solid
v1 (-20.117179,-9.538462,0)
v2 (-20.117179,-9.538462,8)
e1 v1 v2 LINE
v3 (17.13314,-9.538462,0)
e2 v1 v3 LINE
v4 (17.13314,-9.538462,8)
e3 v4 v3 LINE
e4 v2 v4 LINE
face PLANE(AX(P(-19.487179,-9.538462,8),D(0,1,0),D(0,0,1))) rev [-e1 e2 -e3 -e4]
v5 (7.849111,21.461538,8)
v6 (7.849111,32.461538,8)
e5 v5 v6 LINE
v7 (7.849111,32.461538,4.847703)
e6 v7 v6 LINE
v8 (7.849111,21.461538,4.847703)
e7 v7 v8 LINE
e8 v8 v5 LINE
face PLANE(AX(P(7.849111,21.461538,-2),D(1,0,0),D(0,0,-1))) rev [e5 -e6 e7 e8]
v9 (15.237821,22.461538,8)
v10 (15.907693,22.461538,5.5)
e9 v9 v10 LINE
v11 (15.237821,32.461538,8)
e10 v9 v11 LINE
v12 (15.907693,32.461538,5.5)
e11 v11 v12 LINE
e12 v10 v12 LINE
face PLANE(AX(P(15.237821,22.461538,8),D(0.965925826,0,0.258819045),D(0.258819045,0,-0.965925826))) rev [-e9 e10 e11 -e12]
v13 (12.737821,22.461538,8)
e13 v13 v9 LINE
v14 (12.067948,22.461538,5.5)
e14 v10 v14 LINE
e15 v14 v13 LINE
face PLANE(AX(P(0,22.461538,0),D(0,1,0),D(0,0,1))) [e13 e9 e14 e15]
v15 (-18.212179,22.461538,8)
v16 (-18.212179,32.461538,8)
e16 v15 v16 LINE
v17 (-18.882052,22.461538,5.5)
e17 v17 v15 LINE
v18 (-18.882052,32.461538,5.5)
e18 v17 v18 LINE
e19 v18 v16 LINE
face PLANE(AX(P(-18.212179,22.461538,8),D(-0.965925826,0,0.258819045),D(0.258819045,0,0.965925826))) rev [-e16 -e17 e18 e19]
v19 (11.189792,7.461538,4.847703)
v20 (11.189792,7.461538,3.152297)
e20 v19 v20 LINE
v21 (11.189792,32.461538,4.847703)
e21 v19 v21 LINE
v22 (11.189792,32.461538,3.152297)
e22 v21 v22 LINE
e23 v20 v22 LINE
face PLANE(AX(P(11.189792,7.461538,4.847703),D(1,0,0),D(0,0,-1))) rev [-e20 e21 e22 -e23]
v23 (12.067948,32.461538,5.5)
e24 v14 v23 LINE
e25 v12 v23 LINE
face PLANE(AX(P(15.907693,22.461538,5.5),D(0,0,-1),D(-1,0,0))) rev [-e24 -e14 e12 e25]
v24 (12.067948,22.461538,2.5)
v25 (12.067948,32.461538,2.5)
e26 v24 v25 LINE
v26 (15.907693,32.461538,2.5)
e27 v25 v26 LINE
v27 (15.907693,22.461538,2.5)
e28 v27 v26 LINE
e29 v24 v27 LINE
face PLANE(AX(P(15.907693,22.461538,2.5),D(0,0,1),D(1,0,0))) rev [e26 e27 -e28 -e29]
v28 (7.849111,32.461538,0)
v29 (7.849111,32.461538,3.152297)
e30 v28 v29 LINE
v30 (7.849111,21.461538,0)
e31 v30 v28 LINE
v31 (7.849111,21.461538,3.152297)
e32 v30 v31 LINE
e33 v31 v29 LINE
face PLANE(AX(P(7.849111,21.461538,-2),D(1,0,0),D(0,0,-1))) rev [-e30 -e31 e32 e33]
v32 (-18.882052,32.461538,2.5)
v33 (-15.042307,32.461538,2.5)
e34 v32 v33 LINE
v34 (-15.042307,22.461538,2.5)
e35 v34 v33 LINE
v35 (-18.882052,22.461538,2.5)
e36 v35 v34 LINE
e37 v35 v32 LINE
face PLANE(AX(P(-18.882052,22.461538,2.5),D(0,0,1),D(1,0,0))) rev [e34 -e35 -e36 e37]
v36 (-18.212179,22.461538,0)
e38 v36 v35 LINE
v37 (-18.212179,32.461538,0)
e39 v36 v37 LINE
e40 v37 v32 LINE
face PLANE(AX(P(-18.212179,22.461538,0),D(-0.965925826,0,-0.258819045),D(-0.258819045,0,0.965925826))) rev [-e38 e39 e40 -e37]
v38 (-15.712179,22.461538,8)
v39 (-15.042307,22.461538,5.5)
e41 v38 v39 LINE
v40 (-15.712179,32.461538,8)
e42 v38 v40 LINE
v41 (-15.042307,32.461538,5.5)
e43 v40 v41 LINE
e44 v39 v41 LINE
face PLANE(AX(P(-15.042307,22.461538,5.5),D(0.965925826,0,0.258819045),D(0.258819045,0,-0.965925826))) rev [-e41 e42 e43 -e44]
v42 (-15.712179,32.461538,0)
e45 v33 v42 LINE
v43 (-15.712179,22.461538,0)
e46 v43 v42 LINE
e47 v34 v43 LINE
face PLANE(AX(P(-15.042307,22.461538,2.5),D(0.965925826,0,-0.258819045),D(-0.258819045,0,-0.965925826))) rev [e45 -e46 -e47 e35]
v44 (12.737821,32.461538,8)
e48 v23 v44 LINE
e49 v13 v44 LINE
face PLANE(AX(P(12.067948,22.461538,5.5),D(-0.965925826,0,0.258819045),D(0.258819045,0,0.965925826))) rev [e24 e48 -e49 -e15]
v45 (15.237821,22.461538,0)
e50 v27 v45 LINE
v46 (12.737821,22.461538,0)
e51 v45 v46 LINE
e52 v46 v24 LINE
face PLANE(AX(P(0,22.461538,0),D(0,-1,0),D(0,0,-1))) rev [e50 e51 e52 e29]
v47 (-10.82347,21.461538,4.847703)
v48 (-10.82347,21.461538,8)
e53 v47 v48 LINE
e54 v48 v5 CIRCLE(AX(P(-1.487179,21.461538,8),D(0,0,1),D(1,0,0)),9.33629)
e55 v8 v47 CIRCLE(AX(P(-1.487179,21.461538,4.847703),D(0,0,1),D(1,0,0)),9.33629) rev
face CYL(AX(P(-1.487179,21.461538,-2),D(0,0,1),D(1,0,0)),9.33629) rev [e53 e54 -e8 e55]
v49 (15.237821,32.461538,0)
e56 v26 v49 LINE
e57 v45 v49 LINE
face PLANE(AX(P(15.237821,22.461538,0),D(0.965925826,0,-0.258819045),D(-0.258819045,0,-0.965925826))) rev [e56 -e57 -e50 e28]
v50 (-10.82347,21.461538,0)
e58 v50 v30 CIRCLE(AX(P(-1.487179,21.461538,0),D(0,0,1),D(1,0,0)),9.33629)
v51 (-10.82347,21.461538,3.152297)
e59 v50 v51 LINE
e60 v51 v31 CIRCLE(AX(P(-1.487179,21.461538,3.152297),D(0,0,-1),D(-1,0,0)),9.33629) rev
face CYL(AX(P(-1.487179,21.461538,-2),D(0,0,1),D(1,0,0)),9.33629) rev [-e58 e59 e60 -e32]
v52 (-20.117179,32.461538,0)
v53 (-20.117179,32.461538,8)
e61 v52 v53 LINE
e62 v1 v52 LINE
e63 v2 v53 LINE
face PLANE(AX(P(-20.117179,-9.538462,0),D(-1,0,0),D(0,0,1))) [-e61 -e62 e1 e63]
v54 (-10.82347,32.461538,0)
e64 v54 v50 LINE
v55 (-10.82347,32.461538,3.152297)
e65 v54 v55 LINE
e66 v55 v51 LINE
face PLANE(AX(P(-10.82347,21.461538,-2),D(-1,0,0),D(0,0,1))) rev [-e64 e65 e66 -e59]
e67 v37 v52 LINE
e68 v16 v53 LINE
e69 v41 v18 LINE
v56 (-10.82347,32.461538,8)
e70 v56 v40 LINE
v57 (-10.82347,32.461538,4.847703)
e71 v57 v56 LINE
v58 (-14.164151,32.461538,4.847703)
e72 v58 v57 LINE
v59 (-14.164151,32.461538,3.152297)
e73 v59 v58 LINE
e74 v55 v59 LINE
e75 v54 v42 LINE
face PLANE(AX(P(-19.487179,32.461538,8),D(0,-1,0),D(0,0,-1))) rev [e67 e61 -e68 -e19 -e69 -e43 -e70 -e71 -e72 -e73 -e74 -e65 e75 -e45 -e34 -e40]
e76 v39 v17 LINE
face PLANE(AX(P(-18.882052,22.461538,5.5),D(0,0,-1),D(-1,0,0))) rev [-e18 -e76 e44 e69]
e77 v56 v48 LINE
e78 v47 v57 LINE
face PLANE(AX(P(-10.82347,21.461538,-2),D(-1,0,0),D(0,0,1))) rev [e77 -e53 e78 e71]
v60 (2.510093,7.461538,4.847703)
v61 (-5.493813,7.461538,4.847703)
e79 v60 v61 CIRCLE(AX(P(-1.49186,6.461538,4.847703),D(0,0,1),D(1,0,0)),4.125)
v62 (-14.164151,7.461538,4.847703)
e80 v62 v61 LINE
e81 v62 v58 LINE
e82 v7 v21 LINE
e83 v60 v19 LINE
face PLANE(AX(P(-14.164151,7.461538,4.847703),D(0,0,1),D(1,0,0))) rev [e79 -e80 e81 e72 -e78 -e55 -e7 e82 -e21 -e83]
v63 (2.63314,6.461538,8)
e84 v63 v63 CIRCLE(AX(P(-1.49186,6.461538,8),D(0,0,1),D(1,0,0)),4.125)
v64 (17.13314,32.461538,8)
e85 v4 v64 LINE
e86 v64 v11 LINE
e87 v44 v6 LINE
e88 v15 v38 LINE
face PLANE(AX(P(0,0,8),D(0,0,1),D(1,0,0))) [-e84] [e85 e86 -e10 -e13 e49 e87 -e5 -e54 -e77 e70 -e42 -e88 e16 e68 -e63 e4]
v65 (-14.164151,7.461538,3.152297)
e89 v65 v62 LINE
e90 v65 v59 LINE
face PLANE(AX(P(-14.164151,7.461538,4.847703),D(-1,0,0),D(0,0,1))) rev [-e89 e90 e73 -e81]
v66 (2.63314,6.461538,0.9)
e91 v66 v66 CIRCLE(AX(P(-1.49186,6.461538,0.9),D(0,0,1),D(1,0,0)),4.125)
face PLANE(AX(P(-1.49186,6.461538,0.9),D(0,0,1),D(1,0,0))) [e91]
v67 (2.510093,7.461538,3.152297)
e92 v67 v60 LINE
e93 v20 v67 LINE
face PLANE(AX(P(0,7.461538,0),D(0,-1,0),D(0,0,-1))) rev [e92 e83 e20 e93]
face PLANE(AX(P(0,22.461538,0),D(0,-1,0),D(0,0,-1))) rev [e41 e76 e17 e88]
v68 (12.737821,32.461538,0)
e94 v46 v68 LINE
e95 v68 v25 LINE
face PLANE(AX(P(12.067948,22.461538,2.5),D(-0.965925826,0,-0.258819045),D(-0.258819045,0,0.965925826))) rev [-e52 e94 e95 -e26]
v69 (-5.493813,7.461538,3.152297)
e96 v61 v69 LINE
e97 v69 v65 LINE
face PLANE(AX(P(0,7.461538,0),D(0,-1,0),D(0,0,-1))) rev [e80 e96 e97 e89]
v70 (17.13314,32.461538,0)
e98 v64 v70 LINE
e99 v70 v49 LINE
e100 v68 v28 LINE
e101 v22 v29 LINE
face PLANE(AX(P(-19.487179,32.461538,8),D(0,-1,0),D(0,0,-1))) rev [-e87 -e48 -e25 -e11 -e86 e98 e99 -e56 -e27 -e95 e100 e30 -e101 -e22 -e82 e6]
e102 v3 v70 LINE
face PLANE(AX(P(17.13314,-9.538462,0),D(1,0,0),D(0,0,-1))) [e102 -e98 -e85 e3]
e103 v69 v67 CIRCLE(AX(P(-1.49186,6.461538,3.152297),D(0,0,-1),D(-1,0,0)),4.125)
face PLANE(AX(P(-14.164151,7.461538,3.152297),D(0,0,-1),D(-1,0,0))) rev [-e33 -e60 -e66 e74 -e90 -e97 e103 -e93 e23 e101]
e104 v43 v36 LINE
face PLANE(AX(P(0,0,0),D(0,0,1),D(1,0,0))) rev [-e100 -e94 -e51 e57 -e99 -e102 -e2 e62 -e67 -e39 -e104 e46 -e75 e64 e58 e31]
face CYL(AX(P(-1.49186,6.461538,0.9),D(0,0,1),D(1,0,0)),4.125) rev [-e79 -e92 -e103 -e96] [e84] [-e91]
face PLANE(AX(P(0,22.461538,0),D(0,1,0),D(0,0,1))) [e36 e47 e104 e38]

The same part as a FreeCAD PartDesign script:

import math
import FreeCAD as App
import Part
import Sketcher

V = App.Vector
Q = App.Units.Quantity


def add_polygon(sketch, points):
    """Adds a closed chain of lines whose ends are joined by coincident constraints."""
    first, n = sketch.GeometryCount, len(points)
    for a, b in zip(points, points[1:] + points[:1]):
        sketch.addGeometry(Part.LineSegment(App.Vector(*a, 0), App.Vector(*b, 0)), False)
    for i in range(n):
        sketch.addConstraint(Sketcher.Constraint("Coincident", first + i, 2, first + (i + 1) % n, 1))

doc = App.newDocument("Part")
body = doc.addObject("PartDesign::Body", "Body")

# Sketch on XY plane
sketch1 = body.newObject("Sketcher::SketchObject", "Sketch")
sketch1.AttachmentSupport = (doc.getObject("XY_Plane"), [""])
sketch1.MapMode = "FlatFace"
add_polygon(sketch1, [(-19, 32), (-19, -10), (17, -10), (17, 32)])  # lines 0-3
sketch1.addConstraint([
    Sketcher.Constraint("Vertical", 0),
    Sketcher.Constraint("Horizontal", 1),
    Sketcher.Constraint("Vertical", 2),
    Sketcher.Constraint("Horizontal", 3),
    Sketcher.Constraint("DistanceX", 1, 1, 1, 2, Q("36 mm")),
    Sketcher.Constraint("DistanceY", 0, 2, 0, 1, Q("42 mm")),
    Sketcher.Constraint("DistanceX", 0, 2, -1, 1, Q("19.487179 mm")),
    Sketcher.Constraint("DistanceY", 0, 2, -1, 1, Q("9.538462 mm")),
])
pad1 = body.newObject("PartDesign::Pad", "Pad")
pad1.Profile = sketch1
pad1.Length = 8

# Sketch on XZ plane
sketch2 = body.newObject("Sketcher::SketchObject", "Sketch001")
sketch2.AttachmentSupport = (doc.getObject("XZ_Plane"), [""])
sketch2.MapMode = "FlatFace"
sketch2.AttachmentOffset = App.Placement(V(0, 0, -32.461538), App.Rotation())
add_polygon(sketch2, [(-18.2, 0), (-18.9, 2.5), (-15, 2.5), (-15.7, 0)])  # lines 0-3
add_polygon(sketch2, [(-18.9, 5.5), (-18.2, 8), (-15.7, 8), (-15, 5.5)])  # lines 4-7
add_polygon(sketch2, [(15.9, 2.5), (15.2, 0), (12.7, 0), (12.1, 2.5)])  # lines 8-11
add_polygon(sketch2, [(15.2, 8), (15.9, 5.5), (12.1, 5.5), (12.7, 8)])  # lines 12-15
sketch2.addConstraint([
    Sketcher.Constraint("Horizontal", 1),
    Sketcher.Constraint("Horizontal", 3),
    Sketcher.Constraint("Horizontal", 5),
    Sketcher.Constraint("Horizontal", 7),
    Sketcher.Constraint("Horizontal", 9),
    Sketcher.Constraint("Horizontal", 11),
    Sketcher.Constraint("Horizontal", 13),
    Sketcher.Constraint("Horizontal", 15),
    Sketcher.Constraint("PointOnObject", 2, 2, -1),
    Sketcher.Constraint("PointOnObject", 8, 2, -1),
    Sketcher.Constraint("Parallel", 2, 4),
    Sketcher.Constraint("Parallel", 0, 6),
    Sketcher.Constraint("Parallel", 4, 8),
    Sketcher.Constraint("Parallel", 6, 10),
    Sketcher.Constraint("Parallel", 10, 12),
    Sketcher.Constraint("Parallel", 8, 14),
    Sketcher.Constraint("Horizontal", 1, 2, 10, 2),
    Sketcher.Constraint("Horizontal", 7, 2, 12, 2),
    Sketcher.Constraint("Horizontal", 5, 2, 14, 2),
    Sketcher.Constraint("Vertical", 3, 2, 4, 2),
    Sketcher.Constraint("Vertical", 2, 2, 5, 2),
    Sketcher.Constraint("Vertical", 1, 2, 6, 2),
    Sketcher.Constraint("Vertical", 0, 2, 7, 2),
    Sketcher.Constraint("Vertical", 11, 2, 12, 2),
    Sketcher.Constraint("Vertical", 10, 2, 13, 2),
    Sketcher.Constraint("Equal", 5, 9),
    Sketcher.Constraint("Angle", 0, Q("105 deg")),
    Sketcher.Constraint("DistanceX", 3, 2, 3, 1, Q("2.5 mm")),
    Sketcher.Constraint("DistanceY", -1, 1, 4, 2, Q("8 mm")),
    Sketcher.Constraint("DistanceY", 1, 2, 6, 2, Q("3 mm")),
    Sketcher.Constraint("DistanceX", 2, 2, 8, 2, Q("30.95 mm")),
    Sketcher.Constraint("DistanceX", 2, 2, -1, 1, Q("15.712179 mm")),
])
pocket1 = body.newObject("PartDesign::Pocket", "Pocket")
pocket1.Profile = sketch2
pocket1.Length = 10
pocket1.Reversed = True

# Sketch on XY plane
sketch3 = body.newObject("Sketcher::SketchObject", "Sketch002")
sketch3.AttachmentSupport = (doc.getObject("XY_Plane"), [""])
sketch3.MapMode = "FlatFace"
sketch3.AttachmentOffset = App.Placement(V(0, 0, 8), App.Rotation())
sketch3.addGeometry([
    Part.LineSegment(V(8, 32, 0), V(-11, 32, 0)),
    Part.LineSegment(V(-11, 32, 0), V(-11, 21, 0)),
    Part.ArcOfCircle(Part.Circle(V(-1, 21, 0), V(0, 0, 1), 9), math.radians(180), math.radians(360)),
    Part.LineSegment(V(8, 21, 0), V(8, 32, 0)),
], False)
sketch3.addConstraint([
    Sketcher.Constraint("Coincident", 0, 2, 1, 1),
    Sketcher.Constraint("Tangent", 1, 2, 2, 1),
    Sketcher.Constraint("Tangent", 2, 2, 3, 1),
    Sketcher.Constraint("Coincident", 3, 2, 0, 1),
    Sketcher.Constraint("Horizontal", 0),
    Sketcher.Constraint("Vertical", 1),
    Sketcher.Constraint("Vertical", 3),
    Sketcher.Constraint("DistanceY", 1, 2, 1, 1, Q("11 mm")),
    Sketcher.Constraint("Radius", 2, Q("9.33629 mm")),
    Sketcher.Constraint("DistanceX", 2, 3, -1, 1, Q("1.487179 mm")),
    Sketcher.Constraint("DistanceY", -1, 1, 2, 3, Q("21.461538 mm")),
])
pocket2 = body.newObject("PartDesign::Pocket", "Pocket001")
pocket2.Profile = sketch3
pocket2.Length = 10

# Sketch on XZ plane
sketch4 = body.newObject("Sketcher::SketchObject", "Sketch003")
sketch4.AttachmentSupport = (doc.getObject("XZ_Plane"), [""])
sketch4.MapMode = "FlatFace"
sketch4.AttachmentOffset = App.Placement(V(0, 0, -32.461538), App.Rotation())
add_polygon(sketch4, [(-14.2, 3.2), (-14.2, 4.8), (11.2, 4.8), (11.2, 3.2)])  # lines 0-3
sketch4.addConstraint([
    Sketcher.Constraint("Vertical", 0),
    Sketcher.Constraint("Horizontal", 1),
    Sketcher.Constraint("Vertical", 2),
    Sketcher.Constraint("Horizontal", 3),
    Sketcher.Constraint("DistanceX", 1, 1, 1, 2, Q("25.353942 mm")),
    Sketcher.Constraint("DistanceY", 0, 1, 0, 2, Q("1.695405 mm")),
    Sketcher.Constraint("DistanceX", 0, 2, -1, 1, Q("14.164151 mm")),
    Sketcher.Constraint("DistanceY", -1, 1, 0, 2, Q("4.847703 mm")),
])
pocket3 = body.newObject("PartDesign::Pocket", "Pocket002")
pocket3.Profile = sketch4
pocket3.Length = 25
pocket3.Reversed = True

# Sketch on XY plane
sketch5 = body.newObject("Sketcher::SketchObject", "Sketch004")
sketch5.AttachmentSupport = (doc.getObject("XY_Plane"), [""])
sketch5.MapMode = "FlatFace"
sketch5.AttachmentOffset = App.Placement(V(0, 0, 8), App.Rotation())
sketch5.addGeometry(Part.Circle(V(-1.5, 6.5, 0), V(0, 0, 1), 4.1), False)
sketch5.addConstraint([
    Sketcher.Constraint("Diameter", 0, Q("8.25 mm")),
    Sketcher.Constraint("DistanceX", 0, 3, -1, 1, Q("1.49186 mm")),
    Sketcher.Constraint("DistanceY", -1, 1, 0, 3, Q("6.461538 mm")),
])
pocket4 = body.newObject("PartDesign::Pocket", "Pocket003")
pocket4.Profile = sketch5
pocket4.Length = 7.1

# Sketch on XZ plane
sketch6 = body.newObject("Sketcher::SketchObject", "Sketch005")
sketch6.AttachmentSupport = (doc.getObject("XZ_Plane"), [""])
sketch6.MapMode = "FlatFace"
sketch6.AttachmentOffset = App.Placement(V(0, 0, -32.461538), App.Rotation())
add_polygon(sketch6, [(-20.1, 0), (-20.1, 8), (-19.5, 8), (-19.5, 0)])  # lines 0-3
add_polygon(sketch6, [(16.5, 0), (16.5, 8), (17.1, 8), (17.1, 0)])  # lines 4-7
sketch6.addConstraint([
    Sketcher.Constraint("Vertical", 0),
    Sketcher.Constraint("Horizontal", 1),
    Sketcher.Constraint("Vertical", 2),
    Sketcher.Constraint("Horizontal", 3),
    Sketcher.Constraint("Vertical", 4),
    Sketcher.Constraint("Horizontal", 5),
    Sketcher.Constraint("Vertical", 6),
    Sketcher.Constraint("Horizontal", 7),
    Sketcher.Constraint("PointOnObject", 2, 2, -1),
    Sketcher.Constraint("PointOnObject", 6, 2, -1),
    Sketcher.Constraint("Horizontal", 1, 2, 4, 2),
    Sketcher.Constraint("DistanceY", 0, 1, 0, 2, Q("8 mm")),
    Sketcher.Constraint("DistanceX", 1, 2, 4, 2, Q("36 mm")),
    Sketcher.Constraint("DistanceX", 1, 1, 1, 2, Q("0.63 mm")),
    Sketcher.Constraint("DistanceX", 5, 1, 5, 2, Q("0.620319 mm")),
    Sketcher.Constraint("DistanceX", 0, 2, -1, 1, Q("20.117179 mm")),
])
pad2 = body.newObject("PartDesign::Pad", "Pad001")
pad2.Profile = sketch6
pad2.Length = 42

doc.recompute()
